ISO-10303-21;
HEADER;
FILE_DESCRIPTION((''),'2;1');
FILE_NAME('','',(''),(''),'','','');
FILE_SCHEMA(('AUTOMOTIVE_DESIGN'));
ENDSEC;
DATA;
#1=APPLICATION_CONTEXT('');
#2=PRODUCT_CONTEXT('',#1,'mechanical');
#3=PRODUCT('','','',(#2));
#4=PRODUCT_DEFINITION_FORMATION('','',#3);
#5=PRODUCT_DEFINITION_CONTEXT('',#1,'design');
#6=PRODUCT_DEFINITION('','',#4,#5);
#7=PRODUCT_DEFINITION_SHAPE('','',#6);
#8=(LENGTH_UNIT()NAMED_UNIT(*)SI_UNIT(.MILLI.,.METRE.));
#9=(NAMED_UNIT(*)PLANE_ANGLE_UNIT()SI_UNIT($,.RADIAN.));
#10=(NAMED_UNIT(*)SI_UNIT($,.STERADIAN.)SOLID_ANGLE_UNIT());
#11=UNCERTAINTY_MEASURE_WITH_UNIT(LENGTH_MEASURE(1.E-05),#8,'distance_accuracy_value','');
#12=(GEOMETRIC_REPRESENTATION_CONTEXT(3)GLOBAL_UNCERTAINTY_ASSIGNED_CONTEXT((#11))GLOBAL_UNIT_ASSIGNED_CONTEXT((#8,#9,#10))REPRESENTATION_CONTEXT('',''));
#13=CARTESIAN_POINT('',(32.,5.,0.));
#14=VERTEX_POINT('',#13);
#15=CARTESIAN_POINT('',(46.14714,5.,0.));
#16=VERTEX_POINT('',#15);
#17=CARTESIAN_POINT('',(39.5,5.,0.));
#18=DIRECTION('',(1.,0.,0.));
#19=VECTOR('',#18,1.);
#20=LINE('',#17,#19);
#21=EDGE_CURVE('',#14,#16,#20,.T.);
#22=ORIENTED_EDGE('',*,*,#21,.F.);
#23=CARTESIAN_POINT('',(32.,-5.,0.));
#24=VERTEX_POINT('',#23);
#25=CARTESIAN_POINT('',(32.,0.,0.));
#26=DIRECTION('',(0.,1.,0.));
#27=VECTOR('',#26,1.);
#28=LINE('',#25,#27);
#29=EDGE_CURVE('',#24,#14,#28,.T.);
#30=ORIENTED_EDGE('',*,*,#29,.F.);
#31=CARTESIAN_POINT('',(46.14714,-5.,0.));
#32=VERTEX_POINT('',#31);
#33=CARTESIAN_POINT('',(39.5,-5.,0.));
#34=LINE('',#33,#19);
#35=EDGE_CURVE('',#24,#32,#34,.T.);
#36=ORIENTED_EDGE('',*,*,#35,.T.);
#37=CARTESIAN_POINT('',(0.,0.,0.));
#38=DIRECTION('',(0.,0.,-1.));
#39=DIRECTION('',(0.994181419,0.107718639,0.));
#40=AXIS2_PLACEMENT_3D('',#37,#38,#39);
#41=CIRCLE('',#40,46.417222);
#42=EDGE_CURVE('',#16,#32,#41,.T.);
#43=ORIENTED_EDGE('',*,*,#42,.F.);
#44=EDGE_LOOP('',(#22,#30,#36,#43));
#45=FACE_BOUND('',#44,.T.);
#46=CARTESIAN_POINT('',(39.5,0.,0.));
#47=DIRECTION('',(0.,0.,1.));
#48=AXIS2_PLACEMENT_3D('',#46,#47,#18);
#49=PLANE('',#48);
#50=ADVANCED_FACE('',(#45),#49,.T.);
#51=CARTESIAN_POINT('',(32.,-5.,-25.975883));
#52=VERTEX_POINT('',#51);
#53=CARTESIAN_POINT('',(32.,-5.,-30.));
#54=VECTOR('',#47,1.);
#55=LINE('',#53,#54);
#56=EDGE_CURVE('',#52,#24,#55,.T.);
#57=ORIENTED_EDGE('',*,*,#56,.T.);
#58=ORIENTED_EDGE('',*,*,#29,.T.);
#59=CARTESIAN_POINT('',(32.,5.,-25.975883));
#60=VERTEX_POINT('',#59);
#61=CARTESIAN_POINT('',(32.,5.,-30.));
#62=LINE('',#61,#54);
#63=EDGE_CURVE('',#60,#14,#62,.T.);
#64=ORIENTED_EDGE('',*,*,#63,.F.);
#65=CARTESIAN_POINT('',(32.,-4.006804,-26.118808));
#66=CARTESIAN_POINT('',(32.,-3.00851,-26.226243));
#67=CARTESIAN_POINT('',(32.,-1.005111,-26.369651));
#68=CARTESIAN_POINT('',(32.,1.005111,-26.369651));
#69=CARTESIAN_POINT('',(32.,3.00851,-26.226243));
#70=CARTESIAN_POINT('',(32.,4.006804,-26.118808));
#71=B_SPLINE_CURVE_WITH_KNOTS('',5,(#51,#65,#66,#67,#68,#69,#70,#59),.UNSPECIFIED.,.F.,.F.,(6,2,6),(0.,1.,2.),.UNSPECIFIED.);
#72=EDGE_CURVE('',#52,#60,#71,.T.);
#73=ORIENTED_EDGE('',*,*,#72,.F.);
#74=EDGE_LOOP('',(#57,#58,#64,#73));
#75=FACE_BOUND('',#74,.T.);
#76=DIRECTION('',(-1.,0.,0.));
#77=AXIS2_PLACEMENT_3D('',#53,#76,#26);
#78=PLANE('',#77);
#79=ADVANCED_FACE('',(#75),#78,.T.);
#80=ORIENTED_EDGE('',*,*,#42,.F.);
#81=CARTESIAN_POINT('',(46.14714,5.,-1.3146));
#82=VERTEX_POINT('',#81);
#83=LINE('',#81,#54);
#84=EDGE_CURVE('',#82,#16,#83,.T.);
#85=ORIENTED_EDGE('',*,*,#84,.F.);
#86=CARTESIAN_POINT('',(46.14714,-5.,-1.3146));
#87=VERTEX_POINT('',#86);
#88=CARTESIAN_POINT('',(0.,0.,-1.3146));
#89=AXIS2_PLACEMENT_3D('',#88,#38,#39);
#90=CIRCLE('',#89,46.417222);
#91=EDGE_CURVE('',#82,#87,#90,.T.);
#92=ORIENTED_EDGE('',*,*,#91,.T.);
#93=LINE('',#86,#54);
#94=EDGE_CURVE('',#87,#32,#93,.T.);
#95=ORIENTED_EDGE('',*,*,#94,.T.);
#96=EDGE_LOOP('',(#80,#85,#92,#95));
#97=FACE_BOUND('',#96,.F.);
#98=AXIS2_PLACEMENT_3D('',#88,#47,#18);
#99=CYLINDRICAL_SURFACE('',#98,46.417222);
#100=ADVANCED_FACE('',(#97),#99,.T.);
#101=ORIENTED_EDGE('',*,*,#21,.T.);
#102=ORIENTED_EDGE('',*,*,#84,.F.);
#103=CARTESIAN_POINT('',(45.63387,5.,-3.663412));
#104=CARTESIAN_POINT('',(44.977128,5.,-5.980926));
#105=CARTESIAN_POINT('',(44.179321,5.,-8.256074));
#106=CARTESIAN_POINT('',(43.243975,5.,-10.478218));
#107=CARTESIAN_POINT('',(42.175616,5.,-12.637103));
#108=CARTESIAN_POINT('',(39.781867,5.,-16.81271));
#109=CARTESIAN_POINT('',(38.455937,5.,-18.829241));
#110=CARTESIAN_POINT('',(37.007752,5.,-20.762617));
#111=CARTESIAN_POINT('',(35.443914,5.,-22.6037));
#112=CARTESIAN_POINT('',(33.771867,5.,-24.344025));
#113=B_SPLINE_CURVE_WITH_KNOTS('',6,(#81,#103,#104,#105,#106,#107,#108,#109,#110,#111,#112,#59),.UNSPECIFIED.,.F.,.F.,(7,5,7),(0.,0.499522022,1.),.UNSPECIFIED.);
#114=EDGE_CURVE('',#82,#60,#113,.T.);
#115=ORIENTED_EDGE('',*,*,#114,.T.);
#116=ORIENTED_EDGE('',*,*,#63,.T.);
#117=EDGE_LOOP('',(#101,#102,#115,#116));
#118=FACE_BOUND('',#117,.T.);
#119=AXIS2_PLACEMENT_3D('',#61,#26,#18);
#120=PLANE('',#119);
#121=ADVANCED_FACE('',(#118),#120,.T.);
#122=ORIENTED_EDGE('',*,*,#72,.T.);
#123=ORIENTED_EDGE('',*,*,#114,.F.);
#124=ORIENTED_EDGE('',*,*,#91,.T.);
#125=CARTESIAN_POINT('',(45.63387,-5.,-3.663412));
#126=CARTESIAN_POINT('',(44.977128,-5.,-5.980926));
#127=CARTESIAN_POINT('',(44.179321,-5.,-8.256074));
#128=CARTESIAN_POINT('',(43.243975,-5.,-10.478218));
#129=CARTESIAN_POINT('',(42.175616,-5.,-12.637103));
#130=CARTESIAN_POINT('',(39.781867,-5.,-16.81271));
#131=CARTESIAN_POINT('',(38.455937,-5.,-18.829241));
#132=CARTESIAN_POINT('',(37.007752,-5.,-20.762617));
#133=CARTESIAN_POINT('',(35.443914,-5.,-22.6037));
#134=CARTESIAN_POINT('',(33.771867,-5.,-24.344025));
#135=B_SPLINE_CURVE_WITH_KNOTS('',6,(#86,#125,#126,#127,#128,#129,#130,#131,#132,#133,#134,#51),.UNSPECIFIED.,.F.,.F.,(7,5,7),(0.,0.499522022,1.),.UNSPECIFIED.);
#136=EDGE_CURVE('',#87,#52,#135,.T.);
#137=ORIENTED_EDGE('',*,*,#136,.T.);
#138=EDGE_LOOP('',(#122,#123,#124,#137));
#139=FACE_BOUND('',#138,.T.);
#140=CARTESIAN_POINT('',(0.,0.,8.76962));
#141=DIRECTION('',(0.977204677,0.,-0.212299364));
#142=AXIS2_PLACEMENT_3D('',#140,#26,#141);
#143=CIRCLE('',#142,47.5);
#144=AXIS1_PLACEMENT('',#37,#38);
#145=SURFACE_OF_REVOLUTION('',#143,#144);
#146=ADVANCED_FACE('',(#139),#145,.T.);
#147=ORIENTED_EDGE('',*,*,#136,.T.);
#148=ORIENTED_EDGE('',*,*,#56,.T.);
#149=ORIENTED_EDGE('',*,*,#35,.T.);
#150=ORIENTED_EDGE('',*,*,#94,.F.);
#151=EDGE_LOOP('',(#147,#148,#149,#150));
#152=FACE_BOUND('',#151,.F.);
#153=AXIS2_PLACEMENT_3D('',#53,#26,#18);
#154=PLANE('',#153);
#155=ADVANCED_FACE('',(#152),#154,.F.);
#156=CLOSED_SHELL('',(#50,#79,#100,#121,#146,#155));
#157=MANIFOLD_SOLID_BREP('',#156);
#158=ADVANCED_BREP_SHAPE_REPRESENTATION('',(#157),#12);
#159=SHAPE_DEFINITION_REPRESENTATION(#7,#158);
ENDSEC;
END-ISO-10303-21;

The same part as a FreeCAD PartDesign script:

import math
import FreeCAD as App
import Part
import Sketcher

V = App.Vector
Q = App.Units.Quantity


def add_polygon(sketch, points):
    """Adds a closed chain of lines whose ends are joined by coincident constraints."""
    first, n = sketch.GeometryCount, len(points)
    for a, b in zip(points, points[1:] + points[:1]):
        sketch.addGeometry(Part.LineSegment(App.Vector(*a, 0), App.Vector(*b, 0)), False)
    for i in range(n):
        sketch.addConstraint(Sketcher.Constraint("Coincident", first + i, 2, first + (i + 1) % n, 1))

doc = App.newDocument("Part")
params = doc.addObject("Spreadsheet::Sheet", "Params")
for row, (alias, value) in enumerate([
    ("sketch1_width", "15 mm"),
    ("sketch1_height", "10 mm"),
    ("pad1_length", "30 mm"),
    ("sketch2_radius", "47.5 mm"),
    ("sketch2_width", "20 mm"),
    ("sketch2_height", "13 mm"),
    ("revolution_angle", "360 deg"),
], start=1):
    params.set(f"A{row}", alias)
    params.set(f"B{row}", "=" + value)
    params.setAlias(f"B{row}", alias)

body = doc.addObject("PartDesign::Body", "Body")

sketch1 = body.newObject("Sketcher::SketchObject", "Sketch")
sketch1.AttachmentSupport = (doc.getObject("XY_Plane"), [""])
sketch1.MapMode = "FlatFace"
sketch1.AttachmentOffset = App.Placement(V(0, 0, -30), App.Rotation())
add_polygon(sketch1, [(32, 5), (32, -5), (47, -5), (47, 5)])
sketch1.addConstraint([
    Sketcher.Constraint("Vertical", 0),
    Sketcher.Constraint("Horizontal", 1),
    Sketcher.Constraint("Vertical", 2),
    Sketcher.Constraint("Horizontal", 3),
    Sketcher.Constraint("DistanceX", 1, 1, 1, 2, Q("15 mm")),
    Sketcher.Constraint("DistanceY", 0, 2, 0, 1, Q("10 mm")),
    Sketcher.Constraint("DistanceX", -1, 1, 0, 2, Q("32 mm")),
    Sketcher.Constraint("DistanceY", 0, 2, -1, 1, Q("5 mm")),
])
sketch1.setExpression("Constraints[8]", "Params.sketch1_width")
sketch1.setExpression("Constraints[9]", "Params.sketch1_height")
pad1 = body.newObject("PartDesign::Pad", "Pad")
pad1.Profile = sketch1
pad1.setExpression("Length", "Params.pad1_length")
body2 = doc.addObject("PartDesign::Body", "Body001")

sketch2 = body2.newObject("Sketcher::SketchObject", "Sketch001")
sketch2.AttachmentSupport = (doc.getObject("XZ_Plane001"), [""])
sketch2.MapMode = "FlatFace"
sketch2.addGeometry([
    Part.LineSegment(V(20, -34.3146, 0), V(20, -50.804604, 0)),
    Part.LineSegment(V(20, -50.804604, 0), V(0, -50.804604, 0)),
    Part.LineSegment(V(0, -50.804604, 0), V(0, 11.6854, 0)),
    Part.LineSegment(V(0, 11.6854, 0), V(46.417222, 11.6854, 0)),
    Part.LineSegment(V(46.417222, 11.6854, 0), V(46.417222, -1.3146, 0)),
    Part.ArcOfCircle(Part.Circle(V(0, 8.76962, 0), V(0, 0, 1), 47.5), math.radians(-65.098937), math.radians(-12.257135)),
], False)
sketch2.addConstraint([
    Sketcher.Constraint("Coincident", 0, 2, 1, 1),
    Sketcher.Constraint("Coincident", 1, 2, 2, 1),
    Sketcher.Constraint("Coincident", 2, 2, 3, 1),
    Sketcher.Constraint("Coincident", 3, 2, 4, 1),
    Sketcher.Constraint("Coincident", 4, 2, 5, 2),
    Sketcher.Constraint("Coincident", 5, 1, 0, 1),
    Sketcher.Constraint("Vertical", 0),
    Sketcher.Constraint("Horizontal", 1),
    Sketcher.Constraint("Vertical", 2),
    Sketcher.Constraint("Horizontal", 3),
    Sketcher.Constraint("Vertical", 4),
    Sketcher.Constraint("PointOnObject", 5, 3, -2),
    Sketcher.Constraint("PointOnObject", 1, 2, -2),
    Sketcher.Constraint("Radius", 5, Q("47.5 mm")),
    Sketcher.Constraint("DistanceX", 1, 2, 1, 1, Q("20 mm")),
    Sketcher.Constraint("DistanceY", 4, 2, 4, 1, Q("13 mm")),
    Sketcher.Constraint("DistanceY", 5, 1, 4, 2, Q("33 mm")),
    Sketcher.Constraint("DistanceY", -1, 1, 2, 2, Q("11.6854 mm")),
    Sketcher.Constraint("DistanceY", 0, 2, 0, 1, Q("16.490004 mm")),
])
sketch2.setExpression("Constraints[13]", "Params.sketch2_radius")
sketch2.setExpression("Constraints[14]", "Params.sketch2_width")
sketch2.setExpression("Constraints[15]", "Params.sketch2_height")
revolution = body2.newObject("PartDesign::Revolution", "Revolution")
revolution.Profile = sketch2
revolution.ReferenceAxis = (sketch2, ["V_Axis"])
revolution.setExpression("Angle", "Params.revolution_angle")
doc.recompute()

boolean = body2.newObject("PartDesign::Boolean", "Boolean")
boolean.Type = "Common"
boolean.addObjects([body])

doc.recompute()
